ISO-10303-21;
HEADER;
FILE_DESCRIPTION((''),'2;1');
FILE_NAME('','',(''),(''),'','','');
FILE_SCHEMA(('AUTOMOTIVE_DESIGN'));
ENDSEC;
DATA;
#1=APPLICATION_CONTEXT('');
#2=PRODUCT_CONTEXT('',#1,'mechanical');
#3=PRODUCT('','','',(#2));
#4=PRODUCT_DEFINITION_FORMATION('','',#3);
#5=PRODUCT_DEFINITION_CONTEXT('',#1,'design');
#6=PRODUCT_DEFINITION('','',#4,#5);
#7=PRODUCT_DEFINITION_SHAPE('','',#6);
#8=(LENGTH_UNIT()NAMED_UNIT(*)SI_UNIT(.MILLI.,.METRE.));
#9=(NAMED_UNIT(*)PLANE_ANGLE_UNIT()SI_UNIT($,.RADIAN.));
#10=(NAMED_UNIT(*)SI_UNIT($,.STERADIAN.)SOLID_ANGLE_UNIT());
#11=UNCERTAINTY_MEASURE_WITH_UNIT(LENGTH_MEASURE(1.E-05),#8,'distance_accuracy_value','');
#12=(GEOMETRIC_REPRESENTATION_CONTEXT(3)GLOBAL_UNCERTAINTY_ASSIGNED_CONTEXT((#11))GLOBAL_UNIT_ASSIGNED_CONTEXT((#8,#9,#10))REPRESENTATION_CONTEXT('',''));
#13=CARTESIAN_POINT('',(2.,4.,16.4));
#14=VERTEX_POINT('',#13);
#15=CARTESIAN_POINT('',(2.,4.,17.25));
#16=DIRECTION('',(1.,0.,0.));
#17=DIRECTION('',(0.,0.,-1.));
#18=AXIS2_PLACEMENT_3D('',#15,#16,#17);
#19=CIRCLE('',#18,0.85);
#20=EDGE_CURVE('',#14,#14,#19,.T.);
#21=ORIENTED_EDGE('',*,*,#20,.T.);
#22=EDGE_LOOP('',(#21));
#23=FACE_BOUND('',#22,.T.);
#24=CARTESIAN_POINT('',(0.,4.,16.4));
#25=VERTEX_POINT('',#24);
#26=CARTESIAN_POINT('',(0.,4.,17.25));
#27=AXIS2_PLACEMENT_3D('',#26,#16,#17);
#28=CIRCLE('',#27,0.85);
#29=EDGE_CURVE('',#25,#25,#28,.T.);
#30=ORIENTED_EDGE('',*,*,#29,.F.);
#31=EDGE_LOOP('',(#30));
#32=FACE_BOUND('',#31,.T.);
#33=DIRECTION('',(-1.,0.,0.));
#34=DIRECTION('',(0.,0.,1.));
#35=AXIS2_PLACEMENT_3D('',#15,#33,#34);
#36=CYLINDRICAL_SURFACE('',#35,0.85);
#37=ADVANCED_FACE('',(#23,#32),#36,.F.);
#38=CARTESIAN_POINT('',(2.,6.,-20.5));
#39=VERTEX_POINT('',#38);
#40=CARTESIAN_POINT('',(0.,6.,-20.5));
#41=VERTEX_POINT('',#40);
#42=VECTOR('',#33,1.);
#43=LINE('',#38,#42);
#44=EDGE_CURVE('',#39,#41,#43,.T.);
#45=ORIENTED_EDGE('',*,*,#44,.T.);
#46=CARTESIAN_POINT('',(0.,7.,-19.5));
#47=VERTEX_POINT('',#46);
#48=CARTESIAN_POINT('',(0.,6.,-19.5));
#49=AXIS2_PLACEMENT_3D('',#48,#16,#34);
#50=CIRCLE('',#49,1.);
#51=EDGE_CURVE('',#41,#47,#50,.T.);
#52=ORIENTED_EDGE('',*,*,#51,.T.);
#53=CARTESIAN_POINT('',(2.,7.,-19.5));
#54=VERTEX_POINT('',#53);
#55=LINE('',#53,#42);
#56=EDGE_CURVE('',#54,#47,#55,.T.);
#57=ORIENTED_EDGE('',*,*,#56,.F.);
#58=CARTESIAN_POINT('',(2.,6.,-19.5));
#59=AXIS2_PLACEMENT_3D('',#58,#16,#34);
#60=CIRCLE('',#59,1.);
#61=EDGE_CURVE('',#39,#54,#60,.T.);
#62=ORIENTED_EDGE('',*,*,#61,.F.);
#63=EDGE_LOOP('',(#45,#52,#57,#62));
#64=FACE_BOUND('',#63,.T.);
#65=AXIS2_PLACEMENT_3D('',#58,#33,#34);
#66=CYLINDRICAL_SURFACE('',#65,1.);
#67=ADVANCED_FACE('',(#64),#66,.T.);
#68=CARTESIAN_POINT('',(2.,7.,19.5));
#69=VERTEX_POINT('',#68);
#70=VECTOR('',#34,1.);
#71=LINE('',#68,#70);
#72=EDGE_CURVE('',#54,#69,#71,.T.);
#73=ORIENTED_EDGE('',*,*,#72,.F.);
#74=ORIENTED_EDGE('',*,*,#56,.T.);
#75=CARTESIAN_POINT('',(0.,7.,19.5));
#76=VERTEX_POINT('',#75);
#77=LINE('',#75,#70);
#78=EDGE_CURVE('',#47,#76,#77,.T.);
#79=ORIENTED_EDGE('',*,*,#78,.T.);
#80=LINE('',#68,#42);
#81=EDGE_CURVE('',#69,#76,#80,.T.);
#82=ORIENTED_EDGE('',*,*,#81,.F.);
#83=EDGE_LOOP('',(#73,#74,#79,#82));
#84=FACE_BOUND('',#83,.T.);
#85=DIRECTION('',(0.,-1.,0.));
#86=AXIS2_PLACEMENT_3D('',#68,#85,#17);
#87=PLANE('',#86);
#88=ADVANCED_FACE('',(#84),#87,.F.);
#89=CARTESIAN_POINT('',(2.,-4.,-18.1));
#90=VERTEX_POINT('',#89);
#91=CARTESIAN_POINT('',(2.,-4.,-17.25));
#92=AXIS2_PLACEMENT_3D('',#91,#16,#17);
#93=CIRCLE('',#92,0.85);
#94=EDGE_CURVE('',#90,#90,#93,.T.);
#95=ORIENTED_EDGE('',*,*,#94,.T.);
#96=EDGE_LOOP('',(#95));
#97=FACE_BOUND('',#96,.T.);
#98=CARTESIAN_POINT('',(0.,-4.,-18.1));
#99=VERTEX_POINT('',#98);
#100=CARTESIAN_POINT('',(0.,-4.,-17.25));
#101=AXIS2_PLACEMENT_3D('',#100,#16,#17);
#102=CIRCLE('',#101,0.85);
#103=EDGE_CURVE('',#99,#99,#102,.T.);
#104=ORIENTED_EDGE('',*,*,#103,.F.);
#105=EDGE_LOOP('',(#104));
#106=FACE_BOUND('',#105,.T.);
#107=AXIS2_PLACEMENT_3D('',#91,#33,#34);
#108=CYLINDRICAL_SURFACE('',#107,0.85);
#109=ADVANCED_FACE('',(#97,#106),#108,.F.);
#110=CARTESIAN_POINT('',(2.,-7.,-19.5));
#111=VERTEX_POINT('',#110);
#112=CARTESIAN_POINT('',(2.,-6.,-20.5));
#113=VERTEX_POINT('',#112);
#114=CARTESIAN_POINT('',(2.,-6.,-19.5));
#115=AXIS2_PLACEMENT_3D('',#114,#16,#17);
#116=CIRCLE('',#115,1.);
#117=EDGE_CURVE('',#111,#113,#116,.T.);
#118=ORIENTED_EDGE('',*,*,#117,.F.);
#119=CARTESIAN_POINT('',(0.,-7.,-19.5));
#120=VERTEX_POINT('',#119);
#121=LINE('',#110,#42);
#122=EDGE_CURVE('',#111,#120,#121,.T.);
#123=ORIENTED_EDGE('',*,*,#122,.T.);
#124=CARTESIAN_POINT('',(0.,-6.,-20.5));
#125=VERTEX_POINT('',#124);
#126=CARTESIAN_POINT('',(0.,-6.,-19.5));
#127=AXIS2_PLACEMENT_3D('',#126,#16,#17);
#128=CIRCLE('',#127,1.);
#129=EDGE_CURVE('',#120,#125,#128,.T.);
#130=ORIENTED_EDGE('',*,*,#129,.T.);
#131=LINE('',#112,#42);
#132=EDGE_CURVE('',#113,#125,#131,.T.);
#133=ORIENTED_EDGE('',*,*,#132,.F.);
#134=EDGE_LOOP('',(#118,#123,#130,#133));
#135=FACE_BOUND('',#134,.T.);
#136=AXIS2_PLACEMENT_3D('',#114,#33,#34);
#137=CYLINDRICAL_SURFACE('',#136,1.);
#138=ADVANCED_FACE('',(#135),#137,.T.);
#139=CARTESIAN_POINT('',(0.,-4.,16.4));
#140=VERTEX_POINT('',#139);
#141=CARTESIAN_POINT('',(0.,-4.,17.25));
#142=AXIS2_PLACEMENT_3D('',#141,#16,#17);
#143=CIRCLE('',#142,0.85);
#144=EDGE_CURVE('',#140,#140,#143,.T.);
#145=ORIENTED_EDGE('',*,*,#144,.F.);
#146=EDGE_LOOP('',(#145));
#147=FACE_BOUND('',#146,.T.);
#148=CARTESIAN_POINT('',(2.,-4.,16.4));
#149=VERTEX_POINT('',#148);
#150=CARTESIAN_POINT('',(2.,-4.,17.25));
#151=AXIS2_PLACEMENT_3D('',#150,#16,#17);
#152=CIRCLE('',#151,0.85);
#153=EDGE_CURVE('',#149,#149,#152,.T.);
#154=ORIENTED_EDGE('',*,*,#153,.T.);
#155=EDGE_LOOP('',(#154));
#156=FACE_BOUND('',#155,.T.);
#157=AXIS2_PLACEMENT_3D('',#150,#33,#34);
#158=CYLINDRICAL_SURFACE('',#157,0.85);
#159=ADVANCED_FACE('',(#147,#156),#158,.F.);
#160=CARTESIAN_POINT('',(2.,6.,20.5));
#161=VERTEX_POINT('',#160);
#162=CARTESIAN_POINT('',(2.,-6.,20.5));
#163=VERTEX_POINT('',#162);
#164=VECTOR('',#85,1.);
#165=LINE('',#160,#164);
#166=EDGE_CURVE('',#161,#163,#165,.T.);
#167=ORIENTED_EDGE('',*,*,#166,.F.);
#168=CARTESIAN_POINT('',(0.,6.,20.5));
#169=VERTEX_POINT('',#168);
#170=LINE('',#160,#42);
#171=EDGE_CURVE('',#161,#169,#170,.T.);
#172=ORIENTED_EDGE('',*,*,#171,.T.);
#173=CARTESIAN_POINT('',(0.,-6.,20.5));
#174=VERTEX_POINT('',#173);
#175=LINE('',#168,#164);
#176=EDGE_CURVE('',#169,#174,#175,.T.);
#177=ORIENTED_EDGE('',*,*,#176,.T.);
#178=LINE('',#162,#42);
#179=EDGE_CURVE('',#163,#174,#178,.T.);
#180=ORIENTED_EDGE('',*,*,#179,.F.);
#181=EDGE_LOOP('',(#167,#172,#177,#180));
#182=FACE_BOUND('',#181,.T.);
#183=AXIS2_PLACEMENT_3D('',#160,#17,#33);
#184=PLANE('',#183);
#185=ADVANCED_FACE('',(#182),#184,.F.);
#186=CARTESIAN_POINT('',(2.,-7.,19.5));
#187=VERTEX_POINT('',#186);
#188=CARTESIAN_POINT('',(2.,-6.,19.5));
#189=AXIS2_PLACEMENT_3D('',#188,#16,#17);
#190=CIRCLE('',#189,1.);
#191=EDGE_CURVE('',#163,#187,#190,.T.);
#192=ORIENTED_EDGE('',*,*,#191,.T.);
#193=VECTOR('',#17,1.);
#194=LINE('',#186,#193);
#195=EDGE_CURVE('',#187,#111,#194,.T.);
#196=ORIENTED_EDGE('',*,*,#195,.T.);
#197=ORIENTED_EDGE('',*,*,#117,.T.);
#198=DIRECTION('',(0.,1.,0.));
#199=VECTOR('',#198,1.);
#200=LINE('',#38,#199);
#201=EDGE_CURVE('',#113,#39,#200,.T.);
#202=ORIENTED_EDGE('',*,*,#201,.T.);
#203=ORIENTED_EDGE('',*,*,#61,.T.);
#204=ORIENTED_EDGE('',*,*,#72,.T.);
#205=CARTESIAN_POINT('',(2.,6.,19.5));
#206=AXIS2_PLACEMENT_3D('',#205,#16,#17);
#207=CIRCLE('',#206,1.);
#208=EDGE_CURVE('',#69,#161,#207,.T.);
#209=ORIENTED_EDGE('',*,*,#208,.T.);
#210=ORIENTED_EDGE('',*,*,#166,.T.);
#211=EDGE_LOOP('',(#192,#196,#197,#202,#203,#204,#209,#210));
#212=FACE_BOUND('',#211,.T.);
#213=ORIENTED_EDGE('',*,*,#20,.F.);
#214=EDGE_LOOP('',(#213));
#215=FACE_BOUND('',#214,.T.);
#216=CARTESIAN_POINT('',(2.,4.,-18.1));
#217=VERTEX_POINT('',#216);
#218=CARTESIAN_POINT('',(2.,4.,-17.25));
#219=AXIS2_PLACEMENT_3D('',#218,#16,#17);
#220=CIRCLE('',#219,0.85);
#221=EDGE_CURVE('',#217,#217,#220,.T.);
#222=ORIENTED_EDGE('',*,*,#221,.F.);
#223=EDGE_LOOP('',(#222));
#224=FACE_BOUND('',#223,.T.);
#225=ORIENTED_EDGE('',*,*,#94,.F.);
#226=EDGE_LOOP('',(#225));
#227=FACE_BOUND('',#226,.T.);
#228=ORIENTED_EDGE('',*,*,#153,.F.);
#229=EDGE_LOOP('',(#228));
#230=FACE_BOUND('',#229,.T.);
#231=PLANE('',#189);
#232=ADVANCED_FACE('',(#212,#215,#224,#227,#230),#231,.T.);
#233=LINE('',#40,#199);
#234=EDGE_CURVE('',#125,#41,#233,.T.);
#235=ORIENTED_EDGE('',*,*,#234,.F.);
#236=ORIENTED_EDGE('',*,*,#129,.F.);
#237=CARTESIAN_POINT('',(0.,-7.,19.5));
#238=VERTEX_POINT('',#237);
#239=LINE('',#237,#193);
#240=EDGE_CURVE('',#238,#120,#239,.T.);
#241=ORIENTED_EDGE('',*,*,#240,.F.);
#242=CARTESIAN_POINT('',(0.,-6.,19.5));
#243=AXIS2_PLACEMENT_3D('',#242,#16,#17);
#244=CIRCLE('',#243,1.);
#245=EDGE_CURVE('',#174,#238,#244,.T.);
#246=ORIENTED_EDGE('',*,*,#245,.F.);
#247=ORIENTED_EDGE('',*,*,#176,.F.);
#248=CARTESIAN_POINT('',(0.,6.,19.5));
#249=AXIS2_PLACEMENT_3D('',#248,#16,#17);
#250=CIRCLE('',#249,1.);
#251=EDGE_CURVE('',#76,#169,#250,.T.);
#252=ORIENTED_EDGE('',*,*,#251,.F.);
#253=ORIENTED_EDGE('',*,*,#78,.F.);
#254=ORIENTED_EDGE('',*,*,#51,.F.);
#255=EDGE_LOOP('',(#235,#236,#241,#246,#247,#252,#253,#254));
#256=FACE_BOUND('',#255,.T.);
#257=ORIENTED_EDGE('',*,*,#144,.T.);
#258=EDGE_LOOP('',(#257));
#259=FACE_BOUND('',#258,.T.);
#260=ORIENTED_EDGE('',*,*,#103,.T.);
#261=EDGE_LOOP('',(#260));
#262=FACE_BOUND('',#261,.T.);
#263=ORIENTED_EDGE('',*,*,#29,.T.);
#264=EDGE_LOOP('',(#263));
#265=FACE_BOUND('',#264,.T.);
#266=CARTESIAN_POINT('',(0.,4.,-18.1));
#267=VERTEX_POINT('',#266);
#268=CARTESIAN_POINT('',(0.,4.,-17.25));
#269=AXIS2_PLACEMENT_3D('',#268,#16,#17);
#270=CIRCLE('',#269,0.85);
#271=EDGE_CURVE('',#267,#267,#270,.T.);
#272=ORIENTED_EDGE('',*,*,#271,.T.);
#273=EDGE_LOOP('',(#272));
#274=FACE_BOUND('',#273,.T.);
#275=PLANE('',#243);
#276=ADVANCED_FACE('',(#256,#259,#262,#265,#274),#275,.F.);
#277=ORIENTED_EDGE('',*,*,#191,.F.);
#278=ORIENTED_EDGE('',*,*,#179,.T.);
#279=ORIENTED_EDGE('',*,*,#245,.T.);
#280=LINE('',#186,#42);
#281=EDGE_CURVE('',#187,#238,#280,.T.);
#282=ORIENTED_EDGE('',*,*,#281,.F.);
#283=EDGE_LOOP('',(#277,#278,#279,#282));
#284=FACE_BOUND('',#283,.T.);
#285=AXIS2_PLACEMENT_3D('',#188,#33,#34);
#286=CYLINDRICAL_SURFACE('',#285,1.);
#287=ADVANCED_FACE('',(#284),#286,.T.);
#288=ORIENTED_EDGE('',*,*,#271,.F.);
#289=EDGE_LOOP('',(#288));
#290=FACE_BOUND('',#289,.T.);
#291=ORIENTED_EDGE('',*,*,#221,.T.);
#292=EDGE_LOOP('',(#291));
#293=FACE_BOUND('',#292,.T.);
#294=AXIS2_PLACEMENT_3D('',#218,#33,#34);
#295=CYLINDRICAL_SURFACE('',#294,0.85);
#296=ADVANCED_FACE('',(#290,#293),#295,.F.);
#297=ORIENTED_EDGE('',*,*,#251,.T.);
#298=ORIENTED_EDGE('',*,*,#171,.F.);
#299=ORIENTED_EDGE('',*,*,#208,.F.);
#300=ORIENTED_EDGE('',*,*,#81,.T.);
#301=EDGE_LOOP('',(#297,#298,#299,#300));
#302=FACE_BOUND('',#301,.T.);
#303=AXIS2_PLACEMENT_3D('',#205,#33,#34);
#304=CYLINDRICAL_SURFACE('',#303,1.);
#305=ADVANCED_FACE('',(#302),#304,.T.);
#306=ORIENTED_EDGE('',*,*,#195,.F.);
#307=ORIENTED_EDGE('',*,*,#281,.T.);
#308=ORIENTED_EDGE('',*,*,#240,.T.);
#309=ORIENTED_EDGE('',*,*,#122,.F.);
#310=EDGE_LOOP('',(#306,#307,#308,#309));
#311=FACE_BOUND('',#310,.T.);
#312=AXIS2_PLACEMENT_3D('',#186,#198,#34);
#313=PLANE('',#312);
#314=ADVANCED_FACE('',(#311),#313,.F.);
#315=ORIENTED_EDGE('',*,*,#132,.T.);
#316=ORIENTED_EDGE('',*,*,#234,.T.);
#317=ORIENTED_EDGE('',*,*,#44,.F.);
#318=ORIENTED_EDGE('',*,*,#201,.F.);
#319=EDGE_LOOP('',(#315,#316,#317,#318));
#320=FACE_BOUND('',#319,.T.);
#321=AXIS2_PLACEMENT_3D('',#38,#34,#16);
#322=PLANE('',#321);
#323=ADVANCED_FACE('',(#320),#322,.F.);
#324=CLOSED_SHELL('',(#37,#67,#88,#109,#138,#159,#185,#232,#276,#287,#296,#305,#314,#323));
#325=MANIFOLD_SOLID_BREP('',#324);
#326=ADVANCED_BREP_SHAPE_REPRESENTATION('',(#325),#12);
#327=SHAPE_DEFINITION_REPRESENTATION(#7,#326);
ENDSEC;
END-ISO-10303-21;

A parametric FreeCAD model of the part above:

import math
import FreeCAD as App
import Part
import Sketcher

V = App.Vector
Q = App.Units.Quantity

doc = App.newDocument("Part")
body = doc.addObject("PartDesign::Body", "Body")

# Sketch on YZ plane
sketch1 = body.newObject("Sketcher::SketchObject", "Sketch")
sketch1.AttachmentSupport = (doc.getObject("YZ_Plane"), [""])
sketch1.MapMode = "FlatFace"
sketch1.addGeometry([
    Part.LineSegment(V(7, -19.5, 0), V(7, 19.5, 0)),  # 0
    Part.ArcOfCircle(Part.Circle(V(6, 19.5, 0), V(0, 0, 1), 1), math.radians(0), math.radians(90)),  # 1
    Part.LineSegment(V(6, 20.5, 0), V(-6, 20.5, 0)),  # 2
    Part.ArcOfCircle(Part.Circle(V(-6, 19.5, 0), V(0, 0, 1), 1), math.radians(90), math.radians(180)),  # 3
    Part.LineSegment(V(-7, 19.5, 0), V(-7, -19.5, 0)),  # 4
    Part.ArcOfCircle(Part.Circle(V(-6, -19.5, 0), V(0, 0, 1), 1), math.radians(-180), math.radians(-90)),  # 5
    Part.LineSegment(V(-6, -20.5, 0), V(6, -20.5, 0)),  # 6
    Part.ArcOfCircle(Part.Circle(V(6, -19.5, 0), V(0, 0, 1), 1), math.radians(-90), math.radians(0)),  # 7
    Part.Circle(V(-4, -17.25, 0), V(0, 0, 1), 0.85),  # 8
    Part.Circle(V(-4, 17.25, 0), V(0, 0, 1), 0.85),  # 9
    Part.Circle(V(4, -17.25, 0), V(0, 0, 1), 0.85),  # 10
    Part.Circle(V(4, 17.25, 0), V(0, 0, 1), 0.85),  # 11
], False)
sketch1.addConstraint([
    Sketcher.Constraint("Tangent", 0, 2, 1, 1),
    Sketcher.Constraint("Tangent", 1, 2, 2, 1),
    Sketcher.Constraint("Tangent", 2, 2, 3, 1),
    Sketcher.Constraint("Tangent", 3, 2, 4, 1),
    Sketcher.Constraint("Tangent", 4, 2, 5, 1),
    Sketcher.Constraint("Tangent", 5, 2, 6, 1),
    Sketcher.Constraint("Tangent", 6, 2, 7, 1),
    Sketcher.Constraint("Tangent", 7, 2, 0, 1),
    Sketcher.Constraint("Vertical", 0),
    Sketcher.Constraint("Horizontal", 2),
    Sketcher.Constraint("Vertical", 4),
    Sketcher.Constraint("Horizontal", 6),
    Sketcher.Constraint("Equal", 1, 3),
    Sketcher.Constraint("Equal", 3, 5),
    Sketcher.Constraint("Equal", 5, 7),
    Sketcher.Constraint("Equal", 8, 9),
    Sketcher.Constraint("Equal", 9, 10),
    Sketcher.Constraint("Equal", 10, 11),
    Sketcher.Constraint("Symmetric", 1, 3, 5, 3, -1, 1),
    Sketcher.Constraint("Symmetric", 9, 3, 10, 3, -1, 1),
    Sketcher.Constraint("Symmetric", 8, 3, 11, 3, -1, 1),
    Sketcher.Constraint("Symmetric", 8, 3, 10, 3, -2),
    Sketcher.Constraint("Radius", 1, Q("1 mm")),
    Sketcher.Constraint("Diameter", 8, Q("1.7 mm")),
    Sketcher.Constraint("DistanceX", 2, 2, 2, 1, Q("12 mm")),
    Sketcher.Constraint("DistanceY", 0, 1, 0, 2, Q("39 mm")),
    Sketcher.Constraint("DistanceX", 8, 3, -1, 1, Q("4 mm")),
    Sketcher.Constraint("DistanceY", 8, 3, 9, 3, Q("34.5 mm")),
])
pad1 = body.newObject("PartDesign::Pad", "Pad")
pad1.Profile = sketch1
pad1.Length = 2

doc.recompute()
